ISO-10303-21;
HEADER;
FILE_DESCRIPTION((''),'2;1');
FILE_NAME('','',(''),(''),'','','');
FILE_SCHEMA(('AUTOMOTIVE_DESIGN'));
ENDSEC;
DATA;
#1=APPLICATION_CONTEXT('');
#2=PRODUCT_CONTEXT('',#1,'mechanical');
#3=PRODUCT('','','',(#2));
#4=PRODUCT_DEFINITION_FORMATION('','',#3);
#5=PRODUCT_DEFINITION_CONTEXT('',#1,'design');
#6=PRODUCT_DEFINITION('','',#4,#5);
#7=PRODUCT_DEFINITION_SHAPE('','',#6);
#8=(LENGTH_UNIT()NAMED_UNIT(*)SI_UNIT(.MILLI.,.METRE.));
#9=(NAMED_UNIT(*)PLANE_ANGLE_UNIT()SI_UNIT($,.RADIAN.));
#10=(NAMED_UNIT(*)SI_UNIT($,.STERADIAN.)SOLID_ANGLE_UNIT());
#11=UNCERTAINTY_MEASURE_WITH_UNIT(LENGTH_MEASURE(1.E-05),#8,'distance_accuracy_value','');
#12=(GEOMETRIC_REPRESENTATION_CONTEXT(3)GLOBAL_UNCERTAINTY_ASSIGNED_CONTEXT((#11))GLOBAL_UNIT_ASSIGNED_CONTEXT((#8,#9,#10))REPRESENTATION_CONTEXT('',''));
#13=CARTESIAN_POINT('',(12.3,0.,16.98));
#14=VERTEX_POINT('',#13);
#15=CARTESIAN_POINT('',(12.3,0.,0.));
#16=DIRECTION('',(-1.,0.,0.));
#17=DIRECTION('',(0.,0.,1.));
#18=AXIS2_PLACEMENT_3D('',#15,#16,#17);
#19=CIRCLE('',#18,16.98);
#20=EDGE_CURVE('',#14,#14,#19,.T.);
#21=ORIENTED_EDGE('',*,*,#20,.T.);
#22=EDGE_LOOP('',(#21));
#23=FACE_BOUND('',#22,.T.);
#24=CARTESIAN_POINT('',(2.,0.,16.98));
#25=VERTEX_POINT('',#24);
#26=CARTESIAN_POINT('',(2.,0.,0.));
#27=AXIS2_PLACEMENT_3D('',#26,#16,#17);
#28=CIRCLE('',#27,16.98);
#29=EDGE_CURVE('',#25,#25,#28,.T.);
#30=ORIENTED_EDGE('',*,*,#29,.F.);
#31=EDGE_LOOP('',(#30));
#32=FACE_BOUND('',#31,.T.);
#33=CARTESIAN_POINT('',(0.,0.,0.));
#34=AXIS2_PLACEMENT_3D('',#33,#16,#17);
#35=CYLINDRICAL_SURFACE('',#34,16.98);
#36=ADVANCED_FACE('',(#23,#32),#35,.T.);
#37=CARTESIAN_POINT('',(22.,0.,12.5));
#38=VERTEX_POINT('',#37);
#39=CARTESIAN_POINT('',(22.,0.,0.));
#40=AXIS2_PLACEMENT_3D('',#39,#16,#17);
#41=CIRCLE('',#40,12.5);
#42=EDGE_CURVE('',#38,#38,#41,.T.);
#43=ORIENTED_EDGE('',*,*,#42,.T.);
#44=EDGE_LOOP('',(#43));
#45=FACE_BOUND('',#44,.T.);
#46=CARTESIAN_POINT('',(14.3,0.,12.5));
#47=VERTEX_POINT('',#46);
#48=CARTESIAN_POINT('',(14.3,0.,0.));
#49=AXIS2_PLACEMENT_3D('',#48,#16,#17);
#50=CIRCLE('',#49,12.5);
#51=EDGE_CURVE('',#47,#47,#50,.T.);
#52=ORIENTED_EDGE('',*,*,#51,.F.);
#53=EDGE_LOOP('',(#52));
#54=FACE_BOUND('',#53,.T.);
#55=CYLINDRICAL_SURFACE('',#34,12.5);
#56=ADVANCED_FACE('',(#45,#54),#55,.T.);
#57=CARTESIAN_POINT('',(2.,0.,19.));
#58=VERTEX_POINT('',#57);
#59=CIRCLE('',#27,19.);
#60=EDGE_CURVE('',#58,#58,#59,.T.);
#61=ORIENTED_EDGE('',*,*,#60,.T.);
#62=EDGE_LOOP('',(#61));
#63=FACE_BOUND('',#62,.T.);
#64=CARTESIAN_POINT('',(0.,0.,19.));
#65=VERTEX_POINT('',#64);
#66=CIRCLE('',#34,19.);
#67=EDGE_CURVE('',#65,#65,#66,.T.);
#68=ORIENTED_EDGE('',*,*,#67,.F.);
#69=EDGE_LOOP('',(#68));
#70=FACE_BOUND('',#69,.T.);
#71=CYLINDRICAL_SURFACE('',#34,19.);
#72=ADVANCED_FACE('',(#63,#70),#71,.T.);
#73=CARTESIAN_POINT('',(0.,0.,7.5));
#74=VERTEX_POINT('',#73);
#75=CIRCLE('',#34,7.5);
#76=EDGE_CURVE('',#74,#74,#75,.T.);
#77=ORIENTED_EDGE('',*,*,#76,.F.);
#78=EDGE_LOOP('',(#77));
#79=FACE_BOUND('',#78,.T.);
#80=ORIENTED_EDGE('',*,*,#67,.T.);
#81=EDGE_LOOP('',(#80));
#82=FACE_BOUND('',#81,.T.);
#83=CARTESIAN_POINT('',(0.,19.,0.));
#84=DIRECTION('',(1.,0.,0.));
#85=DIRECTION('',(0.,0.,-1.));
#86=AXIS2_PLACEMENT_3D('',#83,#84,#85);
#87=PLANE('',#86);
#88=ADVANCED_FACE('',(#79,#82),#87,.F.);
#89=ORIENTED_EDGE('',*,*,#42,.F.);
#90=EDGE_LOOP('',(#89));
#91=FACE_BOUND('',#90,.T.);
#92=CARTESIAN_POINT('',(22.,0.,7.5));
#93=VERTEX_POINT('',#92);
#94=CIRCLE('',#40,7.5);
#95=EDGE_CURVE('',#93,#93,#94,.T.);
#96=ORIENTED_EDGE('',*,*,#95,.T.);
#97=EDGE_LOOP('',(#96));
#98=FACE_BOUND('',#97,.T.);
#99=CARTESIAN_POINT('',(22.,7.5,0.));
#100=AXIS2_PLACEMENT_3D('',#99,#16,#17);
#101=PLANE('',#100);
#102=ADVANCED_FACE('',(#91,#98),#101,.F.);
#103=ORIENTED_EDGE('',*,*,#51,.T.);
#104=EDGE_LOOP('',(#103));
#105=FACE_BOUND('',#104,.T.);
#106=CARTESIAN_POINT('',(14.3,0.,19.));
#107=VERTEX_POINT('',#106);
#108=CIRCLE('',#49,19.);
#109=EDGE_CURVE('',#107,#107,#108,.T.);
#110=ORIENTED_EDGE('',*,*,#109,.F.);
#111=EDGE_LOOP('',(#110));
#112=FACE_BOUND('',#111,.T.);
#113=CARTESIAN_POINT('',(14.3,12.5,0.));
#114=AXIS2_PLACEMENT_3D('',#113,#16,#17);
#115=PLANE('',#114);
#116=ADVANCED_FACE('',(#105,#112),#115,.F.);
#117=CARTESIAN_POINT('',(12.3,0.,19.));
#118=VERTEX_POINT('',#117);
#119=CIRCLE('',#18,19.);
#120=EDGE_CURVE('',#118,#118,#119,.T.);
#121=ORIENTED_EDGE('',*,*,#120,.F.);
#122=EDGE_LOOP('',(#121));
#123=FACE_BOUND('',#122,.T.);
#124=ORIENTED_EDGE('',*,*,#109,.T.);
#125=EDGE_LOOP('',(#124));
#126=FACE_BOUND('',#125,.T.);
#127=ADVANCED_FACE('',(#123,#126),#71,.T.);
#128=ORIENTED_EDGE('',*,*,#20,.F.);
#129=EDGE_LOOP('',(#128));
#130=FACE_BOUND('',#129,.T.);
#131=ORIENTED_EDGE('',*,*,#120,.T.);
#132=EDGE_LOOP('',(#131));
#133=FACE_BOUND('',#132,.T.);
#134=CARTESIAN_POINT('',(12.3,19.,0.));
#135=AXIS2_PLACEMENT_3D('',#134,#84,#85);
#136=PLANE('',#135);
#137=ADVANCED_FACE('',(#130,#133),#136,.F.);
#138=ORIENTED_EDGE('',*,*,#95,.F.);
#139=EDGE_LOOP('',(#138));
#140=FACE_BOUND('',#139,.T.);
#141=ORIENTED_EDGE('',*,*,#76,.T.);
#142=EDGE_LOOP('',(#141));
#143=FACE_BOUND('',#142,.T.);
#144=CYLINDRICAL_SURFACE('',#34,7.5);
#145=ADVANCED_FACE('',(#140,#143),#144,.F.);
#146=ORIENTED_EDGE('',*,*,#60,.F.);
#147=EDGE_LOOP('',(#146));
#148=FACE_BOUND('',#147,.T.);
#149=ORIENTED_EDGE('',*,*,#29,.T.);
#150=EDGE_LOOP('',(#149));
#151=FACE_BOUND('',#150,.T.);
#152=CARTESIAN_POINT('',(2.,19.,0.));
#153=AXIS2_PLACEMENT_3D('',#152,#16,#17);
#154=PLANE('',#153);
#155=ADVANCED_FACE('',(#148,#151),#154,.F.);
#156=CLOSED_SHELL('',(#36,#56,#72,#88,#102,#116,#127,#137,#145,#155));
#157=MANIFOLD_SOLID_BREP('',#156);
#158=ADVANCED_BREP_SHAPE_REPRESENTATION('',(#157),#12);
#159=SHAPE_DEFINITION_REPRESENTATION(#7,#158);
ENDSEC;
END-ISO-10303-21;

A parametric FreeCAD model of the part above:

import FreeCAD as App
import Part
import Sketcher
from FreeCAD import Vector
Q = App.Units.Quantity

doc = App.newDocument("Part")
body = doc.addObject("PartDesign::Body", "Body")

sketch1 = doc.addObject("Sketcher::SketchObject", "Sketch")
body.addObject(sketch1)
sketch1.AttachmentSupport = (doc.XY_Plane, [""])
sketch1.MapMode = "FlatFace"
sketch1.addGeometry([
    Part.LineSegment(Vector(22, 7.5, 0), Vector(22, 12.5, 0)),
    Part.LineSegment(Vector(22, 12.5, 0), Vector(14.3, 12.5, 0)),
    Part.LineSegment(Vector(14.3, 12.5, 0), Vector(14.3, 19, 0)),
    Part.LineSegment(Vector(14.3, 19, 0), Vector(12.3, 19, 0)),
    Part.LineSegment(Vector(12.3, 19, 0), Vector(12.3, 17, 0)),
    Part.LineSegment(Vector(12.3, 17, 0), Vector(2, 17, 0)),
    Part.LineSegment(Vector(2, 17, 0), Vector(2, 19, 0)),
    Part.LineSegment(Vector(2, 19, 0), Vector(0, 19, 0)),
    Part.LineSegment(Vector(0, 19, 0), Vector(0, 7.5, 0)),
    Part.LineSegment(Vector(0, 7.5, 0), Vector(22, 7.5, 0)),
], False)
sketch1.addConstraint([
    Sketcher.Constraint("Coincident", 0, 2, 1, 1),
    Sketcher.Constraint("Coincident", 1, 2, 2, 1),
    Sketcher.Constraint("Coincident", 2, 2, 3, 1),
    Sketcher.Constraint("Coincident", 3, 2, 4, 1),
    Sketcher.Constraint("Coincident", 4, 2, 5, 1),
    Sketcher.Constraint("Coincident", 5, 2, 6, 1),
    Sketcher.Constraint("Coincident", 6, 2, 7, 1),
    Sketcher.Constraint("Coincident", 7, 2, 8, 1),
    Sketcher.Constraint("Coincident", 8, 2, 9, 1),
    Sketcher.Constraint("Coincident", 9, 2, 0, 1),
    Sketcher.Constraint("Vertical", 0),
    Sketcher.Constraint("Horizontal", 1),
    Sketcher.Constraint("Vertical", 2),
    Sketcher.Constraint("Horizontal", 3),
    Sketcher.Constraint("Vertical", 4),
    Sketcher.Constraint("Horizontal", 5),
    Sketcher.Constraint("Vertical", 6),
    Sketcher.Constraint("Horizontal", 7),
    Sketcher.Constraint("Vertical", 8),
    Sketcher.Constraint("Horizontal", 9),
    Sketcher.Constraint("PointOnObject", 7, 2, -2),
    Sketcher.Constraint("Horizontal", 3, 2, 6, 2),
    Sketcher.Constraint("Equal", 3, 7),
    Sketcher.Constraint("DistanceX", 3, 2, 3, 1, Q("2 mm")),
    Sketcher.Constraint("DistanceX", 9, 1, 9, 2, Q("22 mm")),
    Sketcher.Constraint("DistanceY", 0, 1, 0, 2, Q("5 mm")),
    Sketcher.Constraint("DistanceX", 1, 2, 1, 1, Q("7.7 mm")),
    Sketcher.Constraint("DistanceY", 2, 1, 2, 2, Q("6.5 mm")),
    Sketcher.Constraint("DistanceY", -1, 1, 2, 2, Q("19 mm")),
    Sketcher.Constraint("DistanceY", 4, 2, 4, 1, Q("2.02 mm")),
])
revolution = doc.addObject("PartDesign::Revolution", "Revolution")
body.addObject(revolution)
revolution.Profile = sketch1
revolution.ReferenceAxis = (sketch1, ["H_Axis"])
revolution.Angle = 360

doc.recompute()
